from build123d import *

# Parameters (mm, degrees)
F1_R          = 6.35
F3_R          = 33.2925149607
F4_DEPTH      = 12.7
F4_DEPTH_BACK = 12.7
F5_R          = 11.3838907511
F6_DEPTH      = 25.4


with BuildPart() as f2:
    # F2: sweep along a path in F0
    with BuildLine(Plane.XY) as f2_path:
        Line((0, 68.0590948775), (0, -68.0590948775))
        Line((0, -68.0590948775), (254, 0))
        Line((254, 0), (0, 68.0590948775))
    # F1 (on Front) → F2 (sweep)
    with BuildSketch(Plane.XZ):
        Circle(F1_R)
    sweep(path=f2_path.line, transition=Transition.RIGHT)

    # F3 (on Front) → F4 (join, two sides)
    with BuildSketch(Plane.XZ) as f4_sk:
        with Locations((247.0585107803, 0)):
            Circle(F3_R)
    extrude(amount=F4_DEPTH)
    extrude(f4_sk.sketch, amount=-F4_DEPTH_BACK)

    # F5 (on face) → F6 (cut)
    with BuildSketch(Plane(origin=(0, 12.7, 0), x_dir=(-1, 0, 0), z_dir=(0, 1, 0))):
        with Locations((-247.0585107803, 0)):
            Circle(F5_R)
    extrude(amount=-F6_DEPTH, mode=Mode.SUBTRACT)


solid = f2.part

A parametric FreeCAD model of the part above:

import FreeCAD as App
import Part
import Sketcher

V = App.Vector
Q = App.Units.Quantity


def add_polygon(sketch, points):
    """Adds a closed chain of lines whose ends are joined by coincident constraints."""
    first, n = sketch.GeometryCount, len(points)
    for a, b in zip(points, points[1:] + points[:1]):
        sketch.addGeometry(Part.LineSegment(App.Vector(*a, 0), App.Vector(*b, 0)), False)
    for i in range(n):
        sketch.addConstraint(Sketcher.Constraint("Coincident", first + i, 2, first + (i + 1) % n, 1))

doc = App.newDocument("Part")
body = doc.addObject("PartDesign::Body", "Body")

# Sketch on XZ plane
sketch1 = doc.addObject("Sketcher::SketchObject", "Sketch")
body.addObject(sketch1)
sketch1.AttachmentSupport = (doc.XZ_Plane, [""])
sketch1.MapMode = "FlatFace"
sketch1.addGeometry(Part.Circle(V(0, 0, 0), V(0, 0, 1), 6), False)
sketch1.addConstraint(Sketcher.Constraint("Coincident", 0, 3, -1, 1))
sketch1.addConstraint(Sketcher.Constraint("Diameter", 0, Q("0.5 in")))

# Sketch on XY plane
sketch2 = doc.addObject("Sketcher::SketchObject", "Sketch001")
body.addObject(sketch2)
sketch2.AttachmentSupport = (doc.XY_Plane, [""])
sketch2.MapMode = "FlatFace"
add_polygon(sketch2, [(0, 68), (0, -68), (254, 0)])  # lines 0-2
sketch2.addConstraint(Sketcher.Constraint("Vertical", 0))
sketch2.addConstraint(Sketcher.Constraint("Symmetric", 0, 2, 2, 2, -1, 1))
sketch2.addConstraint(Sketcher.Constraint("PointOnObject", 1, 2, -1))
sketch2.addConstraint(Sketcher.Constraint("DistanceX", -1, 1, 1, 2, Q("10 in")))
sketch2.addConstraint(Sketcher.Constraint("Angle", 1, Q("15 deg")))
doc.recompute()

additivepipe = doc.addObject("PartDesign::AdditivePipe", "AdditivePipe")
body.addObject(additivepipe)
additivepipe.Profile = sketch1
additivepipe.Spine = (sketch2, ["Edge1", "Edge2", "Edge3"])
additivepipe.Transition = "Right corner"

# Sketch on XZ plane
sketch3 = doc.addObject("Sketcher::SketchObject", "Sketch002")
body.addObject(sketch3)
sketch3.AttachmentSupport = (doc.XZ_Plane, [""])
sketch3.MapMode = "FlatFace"
sketch3.addGeometry(Part.Circle(V(247, 0, 0), V(0, 0, 1), 33), False)
sketch3.addConstraint(Sketcher.Constraint("PointOnObject", 0, 3, -1))
sketch3.addConstraint(Sketcher.Constraint("Diameter", 0, 66.58503))
sketch3.addConstraint(Sketcher.Constraint("DistanceX", -1, 1, 0, 3, 247.058511))
pad1 = doc.addObject("PartDesign::Pad", "Pad")
body.addObject(pad1)
pad1.Profile = sketch3
pad1.Type = "TwoLengths"
pad1.Length = Q("0.5 in")
pad1.Length2 = Q("0.5 in")

# Sketch on XZ plane
sketch4 = doc.addObject("Sketcher::SketchObject", "Sketch003")
body.addObject(sketch4)
sketch4.AttachmentSupport = (doc.XZ_Plane, [""])
sketch4.MapMode = "FlatFace"
sketch4.AttachmentOffset = App.Placement(V(0, 0, -0.5 * 25.4), App.Rotation())
sketch4.addGeometry(Part.Circle(V(247, 0, 0), V(0, 0, 1), 11), False)
sketch4.addConstraint(Sketcher.Constraint("PointOnObject", 0, 3, -1))
sketch4.addConstraint(Sketcher.Constraint("Diameter", 0, 22.767782))
sketch4.addConstraint(Sketcher.Constraint("DistanceX", -1, 1, 0, 3, 247.058511))
pocket1 = doc.addObject("PartDesign::Pocket", "Pocket")
body.addObject(pocket1)
pocket1.Profile = sketch4
pocket1.Length = Q("1 in")
pocket1.Reversed = True

doc.recompute()
